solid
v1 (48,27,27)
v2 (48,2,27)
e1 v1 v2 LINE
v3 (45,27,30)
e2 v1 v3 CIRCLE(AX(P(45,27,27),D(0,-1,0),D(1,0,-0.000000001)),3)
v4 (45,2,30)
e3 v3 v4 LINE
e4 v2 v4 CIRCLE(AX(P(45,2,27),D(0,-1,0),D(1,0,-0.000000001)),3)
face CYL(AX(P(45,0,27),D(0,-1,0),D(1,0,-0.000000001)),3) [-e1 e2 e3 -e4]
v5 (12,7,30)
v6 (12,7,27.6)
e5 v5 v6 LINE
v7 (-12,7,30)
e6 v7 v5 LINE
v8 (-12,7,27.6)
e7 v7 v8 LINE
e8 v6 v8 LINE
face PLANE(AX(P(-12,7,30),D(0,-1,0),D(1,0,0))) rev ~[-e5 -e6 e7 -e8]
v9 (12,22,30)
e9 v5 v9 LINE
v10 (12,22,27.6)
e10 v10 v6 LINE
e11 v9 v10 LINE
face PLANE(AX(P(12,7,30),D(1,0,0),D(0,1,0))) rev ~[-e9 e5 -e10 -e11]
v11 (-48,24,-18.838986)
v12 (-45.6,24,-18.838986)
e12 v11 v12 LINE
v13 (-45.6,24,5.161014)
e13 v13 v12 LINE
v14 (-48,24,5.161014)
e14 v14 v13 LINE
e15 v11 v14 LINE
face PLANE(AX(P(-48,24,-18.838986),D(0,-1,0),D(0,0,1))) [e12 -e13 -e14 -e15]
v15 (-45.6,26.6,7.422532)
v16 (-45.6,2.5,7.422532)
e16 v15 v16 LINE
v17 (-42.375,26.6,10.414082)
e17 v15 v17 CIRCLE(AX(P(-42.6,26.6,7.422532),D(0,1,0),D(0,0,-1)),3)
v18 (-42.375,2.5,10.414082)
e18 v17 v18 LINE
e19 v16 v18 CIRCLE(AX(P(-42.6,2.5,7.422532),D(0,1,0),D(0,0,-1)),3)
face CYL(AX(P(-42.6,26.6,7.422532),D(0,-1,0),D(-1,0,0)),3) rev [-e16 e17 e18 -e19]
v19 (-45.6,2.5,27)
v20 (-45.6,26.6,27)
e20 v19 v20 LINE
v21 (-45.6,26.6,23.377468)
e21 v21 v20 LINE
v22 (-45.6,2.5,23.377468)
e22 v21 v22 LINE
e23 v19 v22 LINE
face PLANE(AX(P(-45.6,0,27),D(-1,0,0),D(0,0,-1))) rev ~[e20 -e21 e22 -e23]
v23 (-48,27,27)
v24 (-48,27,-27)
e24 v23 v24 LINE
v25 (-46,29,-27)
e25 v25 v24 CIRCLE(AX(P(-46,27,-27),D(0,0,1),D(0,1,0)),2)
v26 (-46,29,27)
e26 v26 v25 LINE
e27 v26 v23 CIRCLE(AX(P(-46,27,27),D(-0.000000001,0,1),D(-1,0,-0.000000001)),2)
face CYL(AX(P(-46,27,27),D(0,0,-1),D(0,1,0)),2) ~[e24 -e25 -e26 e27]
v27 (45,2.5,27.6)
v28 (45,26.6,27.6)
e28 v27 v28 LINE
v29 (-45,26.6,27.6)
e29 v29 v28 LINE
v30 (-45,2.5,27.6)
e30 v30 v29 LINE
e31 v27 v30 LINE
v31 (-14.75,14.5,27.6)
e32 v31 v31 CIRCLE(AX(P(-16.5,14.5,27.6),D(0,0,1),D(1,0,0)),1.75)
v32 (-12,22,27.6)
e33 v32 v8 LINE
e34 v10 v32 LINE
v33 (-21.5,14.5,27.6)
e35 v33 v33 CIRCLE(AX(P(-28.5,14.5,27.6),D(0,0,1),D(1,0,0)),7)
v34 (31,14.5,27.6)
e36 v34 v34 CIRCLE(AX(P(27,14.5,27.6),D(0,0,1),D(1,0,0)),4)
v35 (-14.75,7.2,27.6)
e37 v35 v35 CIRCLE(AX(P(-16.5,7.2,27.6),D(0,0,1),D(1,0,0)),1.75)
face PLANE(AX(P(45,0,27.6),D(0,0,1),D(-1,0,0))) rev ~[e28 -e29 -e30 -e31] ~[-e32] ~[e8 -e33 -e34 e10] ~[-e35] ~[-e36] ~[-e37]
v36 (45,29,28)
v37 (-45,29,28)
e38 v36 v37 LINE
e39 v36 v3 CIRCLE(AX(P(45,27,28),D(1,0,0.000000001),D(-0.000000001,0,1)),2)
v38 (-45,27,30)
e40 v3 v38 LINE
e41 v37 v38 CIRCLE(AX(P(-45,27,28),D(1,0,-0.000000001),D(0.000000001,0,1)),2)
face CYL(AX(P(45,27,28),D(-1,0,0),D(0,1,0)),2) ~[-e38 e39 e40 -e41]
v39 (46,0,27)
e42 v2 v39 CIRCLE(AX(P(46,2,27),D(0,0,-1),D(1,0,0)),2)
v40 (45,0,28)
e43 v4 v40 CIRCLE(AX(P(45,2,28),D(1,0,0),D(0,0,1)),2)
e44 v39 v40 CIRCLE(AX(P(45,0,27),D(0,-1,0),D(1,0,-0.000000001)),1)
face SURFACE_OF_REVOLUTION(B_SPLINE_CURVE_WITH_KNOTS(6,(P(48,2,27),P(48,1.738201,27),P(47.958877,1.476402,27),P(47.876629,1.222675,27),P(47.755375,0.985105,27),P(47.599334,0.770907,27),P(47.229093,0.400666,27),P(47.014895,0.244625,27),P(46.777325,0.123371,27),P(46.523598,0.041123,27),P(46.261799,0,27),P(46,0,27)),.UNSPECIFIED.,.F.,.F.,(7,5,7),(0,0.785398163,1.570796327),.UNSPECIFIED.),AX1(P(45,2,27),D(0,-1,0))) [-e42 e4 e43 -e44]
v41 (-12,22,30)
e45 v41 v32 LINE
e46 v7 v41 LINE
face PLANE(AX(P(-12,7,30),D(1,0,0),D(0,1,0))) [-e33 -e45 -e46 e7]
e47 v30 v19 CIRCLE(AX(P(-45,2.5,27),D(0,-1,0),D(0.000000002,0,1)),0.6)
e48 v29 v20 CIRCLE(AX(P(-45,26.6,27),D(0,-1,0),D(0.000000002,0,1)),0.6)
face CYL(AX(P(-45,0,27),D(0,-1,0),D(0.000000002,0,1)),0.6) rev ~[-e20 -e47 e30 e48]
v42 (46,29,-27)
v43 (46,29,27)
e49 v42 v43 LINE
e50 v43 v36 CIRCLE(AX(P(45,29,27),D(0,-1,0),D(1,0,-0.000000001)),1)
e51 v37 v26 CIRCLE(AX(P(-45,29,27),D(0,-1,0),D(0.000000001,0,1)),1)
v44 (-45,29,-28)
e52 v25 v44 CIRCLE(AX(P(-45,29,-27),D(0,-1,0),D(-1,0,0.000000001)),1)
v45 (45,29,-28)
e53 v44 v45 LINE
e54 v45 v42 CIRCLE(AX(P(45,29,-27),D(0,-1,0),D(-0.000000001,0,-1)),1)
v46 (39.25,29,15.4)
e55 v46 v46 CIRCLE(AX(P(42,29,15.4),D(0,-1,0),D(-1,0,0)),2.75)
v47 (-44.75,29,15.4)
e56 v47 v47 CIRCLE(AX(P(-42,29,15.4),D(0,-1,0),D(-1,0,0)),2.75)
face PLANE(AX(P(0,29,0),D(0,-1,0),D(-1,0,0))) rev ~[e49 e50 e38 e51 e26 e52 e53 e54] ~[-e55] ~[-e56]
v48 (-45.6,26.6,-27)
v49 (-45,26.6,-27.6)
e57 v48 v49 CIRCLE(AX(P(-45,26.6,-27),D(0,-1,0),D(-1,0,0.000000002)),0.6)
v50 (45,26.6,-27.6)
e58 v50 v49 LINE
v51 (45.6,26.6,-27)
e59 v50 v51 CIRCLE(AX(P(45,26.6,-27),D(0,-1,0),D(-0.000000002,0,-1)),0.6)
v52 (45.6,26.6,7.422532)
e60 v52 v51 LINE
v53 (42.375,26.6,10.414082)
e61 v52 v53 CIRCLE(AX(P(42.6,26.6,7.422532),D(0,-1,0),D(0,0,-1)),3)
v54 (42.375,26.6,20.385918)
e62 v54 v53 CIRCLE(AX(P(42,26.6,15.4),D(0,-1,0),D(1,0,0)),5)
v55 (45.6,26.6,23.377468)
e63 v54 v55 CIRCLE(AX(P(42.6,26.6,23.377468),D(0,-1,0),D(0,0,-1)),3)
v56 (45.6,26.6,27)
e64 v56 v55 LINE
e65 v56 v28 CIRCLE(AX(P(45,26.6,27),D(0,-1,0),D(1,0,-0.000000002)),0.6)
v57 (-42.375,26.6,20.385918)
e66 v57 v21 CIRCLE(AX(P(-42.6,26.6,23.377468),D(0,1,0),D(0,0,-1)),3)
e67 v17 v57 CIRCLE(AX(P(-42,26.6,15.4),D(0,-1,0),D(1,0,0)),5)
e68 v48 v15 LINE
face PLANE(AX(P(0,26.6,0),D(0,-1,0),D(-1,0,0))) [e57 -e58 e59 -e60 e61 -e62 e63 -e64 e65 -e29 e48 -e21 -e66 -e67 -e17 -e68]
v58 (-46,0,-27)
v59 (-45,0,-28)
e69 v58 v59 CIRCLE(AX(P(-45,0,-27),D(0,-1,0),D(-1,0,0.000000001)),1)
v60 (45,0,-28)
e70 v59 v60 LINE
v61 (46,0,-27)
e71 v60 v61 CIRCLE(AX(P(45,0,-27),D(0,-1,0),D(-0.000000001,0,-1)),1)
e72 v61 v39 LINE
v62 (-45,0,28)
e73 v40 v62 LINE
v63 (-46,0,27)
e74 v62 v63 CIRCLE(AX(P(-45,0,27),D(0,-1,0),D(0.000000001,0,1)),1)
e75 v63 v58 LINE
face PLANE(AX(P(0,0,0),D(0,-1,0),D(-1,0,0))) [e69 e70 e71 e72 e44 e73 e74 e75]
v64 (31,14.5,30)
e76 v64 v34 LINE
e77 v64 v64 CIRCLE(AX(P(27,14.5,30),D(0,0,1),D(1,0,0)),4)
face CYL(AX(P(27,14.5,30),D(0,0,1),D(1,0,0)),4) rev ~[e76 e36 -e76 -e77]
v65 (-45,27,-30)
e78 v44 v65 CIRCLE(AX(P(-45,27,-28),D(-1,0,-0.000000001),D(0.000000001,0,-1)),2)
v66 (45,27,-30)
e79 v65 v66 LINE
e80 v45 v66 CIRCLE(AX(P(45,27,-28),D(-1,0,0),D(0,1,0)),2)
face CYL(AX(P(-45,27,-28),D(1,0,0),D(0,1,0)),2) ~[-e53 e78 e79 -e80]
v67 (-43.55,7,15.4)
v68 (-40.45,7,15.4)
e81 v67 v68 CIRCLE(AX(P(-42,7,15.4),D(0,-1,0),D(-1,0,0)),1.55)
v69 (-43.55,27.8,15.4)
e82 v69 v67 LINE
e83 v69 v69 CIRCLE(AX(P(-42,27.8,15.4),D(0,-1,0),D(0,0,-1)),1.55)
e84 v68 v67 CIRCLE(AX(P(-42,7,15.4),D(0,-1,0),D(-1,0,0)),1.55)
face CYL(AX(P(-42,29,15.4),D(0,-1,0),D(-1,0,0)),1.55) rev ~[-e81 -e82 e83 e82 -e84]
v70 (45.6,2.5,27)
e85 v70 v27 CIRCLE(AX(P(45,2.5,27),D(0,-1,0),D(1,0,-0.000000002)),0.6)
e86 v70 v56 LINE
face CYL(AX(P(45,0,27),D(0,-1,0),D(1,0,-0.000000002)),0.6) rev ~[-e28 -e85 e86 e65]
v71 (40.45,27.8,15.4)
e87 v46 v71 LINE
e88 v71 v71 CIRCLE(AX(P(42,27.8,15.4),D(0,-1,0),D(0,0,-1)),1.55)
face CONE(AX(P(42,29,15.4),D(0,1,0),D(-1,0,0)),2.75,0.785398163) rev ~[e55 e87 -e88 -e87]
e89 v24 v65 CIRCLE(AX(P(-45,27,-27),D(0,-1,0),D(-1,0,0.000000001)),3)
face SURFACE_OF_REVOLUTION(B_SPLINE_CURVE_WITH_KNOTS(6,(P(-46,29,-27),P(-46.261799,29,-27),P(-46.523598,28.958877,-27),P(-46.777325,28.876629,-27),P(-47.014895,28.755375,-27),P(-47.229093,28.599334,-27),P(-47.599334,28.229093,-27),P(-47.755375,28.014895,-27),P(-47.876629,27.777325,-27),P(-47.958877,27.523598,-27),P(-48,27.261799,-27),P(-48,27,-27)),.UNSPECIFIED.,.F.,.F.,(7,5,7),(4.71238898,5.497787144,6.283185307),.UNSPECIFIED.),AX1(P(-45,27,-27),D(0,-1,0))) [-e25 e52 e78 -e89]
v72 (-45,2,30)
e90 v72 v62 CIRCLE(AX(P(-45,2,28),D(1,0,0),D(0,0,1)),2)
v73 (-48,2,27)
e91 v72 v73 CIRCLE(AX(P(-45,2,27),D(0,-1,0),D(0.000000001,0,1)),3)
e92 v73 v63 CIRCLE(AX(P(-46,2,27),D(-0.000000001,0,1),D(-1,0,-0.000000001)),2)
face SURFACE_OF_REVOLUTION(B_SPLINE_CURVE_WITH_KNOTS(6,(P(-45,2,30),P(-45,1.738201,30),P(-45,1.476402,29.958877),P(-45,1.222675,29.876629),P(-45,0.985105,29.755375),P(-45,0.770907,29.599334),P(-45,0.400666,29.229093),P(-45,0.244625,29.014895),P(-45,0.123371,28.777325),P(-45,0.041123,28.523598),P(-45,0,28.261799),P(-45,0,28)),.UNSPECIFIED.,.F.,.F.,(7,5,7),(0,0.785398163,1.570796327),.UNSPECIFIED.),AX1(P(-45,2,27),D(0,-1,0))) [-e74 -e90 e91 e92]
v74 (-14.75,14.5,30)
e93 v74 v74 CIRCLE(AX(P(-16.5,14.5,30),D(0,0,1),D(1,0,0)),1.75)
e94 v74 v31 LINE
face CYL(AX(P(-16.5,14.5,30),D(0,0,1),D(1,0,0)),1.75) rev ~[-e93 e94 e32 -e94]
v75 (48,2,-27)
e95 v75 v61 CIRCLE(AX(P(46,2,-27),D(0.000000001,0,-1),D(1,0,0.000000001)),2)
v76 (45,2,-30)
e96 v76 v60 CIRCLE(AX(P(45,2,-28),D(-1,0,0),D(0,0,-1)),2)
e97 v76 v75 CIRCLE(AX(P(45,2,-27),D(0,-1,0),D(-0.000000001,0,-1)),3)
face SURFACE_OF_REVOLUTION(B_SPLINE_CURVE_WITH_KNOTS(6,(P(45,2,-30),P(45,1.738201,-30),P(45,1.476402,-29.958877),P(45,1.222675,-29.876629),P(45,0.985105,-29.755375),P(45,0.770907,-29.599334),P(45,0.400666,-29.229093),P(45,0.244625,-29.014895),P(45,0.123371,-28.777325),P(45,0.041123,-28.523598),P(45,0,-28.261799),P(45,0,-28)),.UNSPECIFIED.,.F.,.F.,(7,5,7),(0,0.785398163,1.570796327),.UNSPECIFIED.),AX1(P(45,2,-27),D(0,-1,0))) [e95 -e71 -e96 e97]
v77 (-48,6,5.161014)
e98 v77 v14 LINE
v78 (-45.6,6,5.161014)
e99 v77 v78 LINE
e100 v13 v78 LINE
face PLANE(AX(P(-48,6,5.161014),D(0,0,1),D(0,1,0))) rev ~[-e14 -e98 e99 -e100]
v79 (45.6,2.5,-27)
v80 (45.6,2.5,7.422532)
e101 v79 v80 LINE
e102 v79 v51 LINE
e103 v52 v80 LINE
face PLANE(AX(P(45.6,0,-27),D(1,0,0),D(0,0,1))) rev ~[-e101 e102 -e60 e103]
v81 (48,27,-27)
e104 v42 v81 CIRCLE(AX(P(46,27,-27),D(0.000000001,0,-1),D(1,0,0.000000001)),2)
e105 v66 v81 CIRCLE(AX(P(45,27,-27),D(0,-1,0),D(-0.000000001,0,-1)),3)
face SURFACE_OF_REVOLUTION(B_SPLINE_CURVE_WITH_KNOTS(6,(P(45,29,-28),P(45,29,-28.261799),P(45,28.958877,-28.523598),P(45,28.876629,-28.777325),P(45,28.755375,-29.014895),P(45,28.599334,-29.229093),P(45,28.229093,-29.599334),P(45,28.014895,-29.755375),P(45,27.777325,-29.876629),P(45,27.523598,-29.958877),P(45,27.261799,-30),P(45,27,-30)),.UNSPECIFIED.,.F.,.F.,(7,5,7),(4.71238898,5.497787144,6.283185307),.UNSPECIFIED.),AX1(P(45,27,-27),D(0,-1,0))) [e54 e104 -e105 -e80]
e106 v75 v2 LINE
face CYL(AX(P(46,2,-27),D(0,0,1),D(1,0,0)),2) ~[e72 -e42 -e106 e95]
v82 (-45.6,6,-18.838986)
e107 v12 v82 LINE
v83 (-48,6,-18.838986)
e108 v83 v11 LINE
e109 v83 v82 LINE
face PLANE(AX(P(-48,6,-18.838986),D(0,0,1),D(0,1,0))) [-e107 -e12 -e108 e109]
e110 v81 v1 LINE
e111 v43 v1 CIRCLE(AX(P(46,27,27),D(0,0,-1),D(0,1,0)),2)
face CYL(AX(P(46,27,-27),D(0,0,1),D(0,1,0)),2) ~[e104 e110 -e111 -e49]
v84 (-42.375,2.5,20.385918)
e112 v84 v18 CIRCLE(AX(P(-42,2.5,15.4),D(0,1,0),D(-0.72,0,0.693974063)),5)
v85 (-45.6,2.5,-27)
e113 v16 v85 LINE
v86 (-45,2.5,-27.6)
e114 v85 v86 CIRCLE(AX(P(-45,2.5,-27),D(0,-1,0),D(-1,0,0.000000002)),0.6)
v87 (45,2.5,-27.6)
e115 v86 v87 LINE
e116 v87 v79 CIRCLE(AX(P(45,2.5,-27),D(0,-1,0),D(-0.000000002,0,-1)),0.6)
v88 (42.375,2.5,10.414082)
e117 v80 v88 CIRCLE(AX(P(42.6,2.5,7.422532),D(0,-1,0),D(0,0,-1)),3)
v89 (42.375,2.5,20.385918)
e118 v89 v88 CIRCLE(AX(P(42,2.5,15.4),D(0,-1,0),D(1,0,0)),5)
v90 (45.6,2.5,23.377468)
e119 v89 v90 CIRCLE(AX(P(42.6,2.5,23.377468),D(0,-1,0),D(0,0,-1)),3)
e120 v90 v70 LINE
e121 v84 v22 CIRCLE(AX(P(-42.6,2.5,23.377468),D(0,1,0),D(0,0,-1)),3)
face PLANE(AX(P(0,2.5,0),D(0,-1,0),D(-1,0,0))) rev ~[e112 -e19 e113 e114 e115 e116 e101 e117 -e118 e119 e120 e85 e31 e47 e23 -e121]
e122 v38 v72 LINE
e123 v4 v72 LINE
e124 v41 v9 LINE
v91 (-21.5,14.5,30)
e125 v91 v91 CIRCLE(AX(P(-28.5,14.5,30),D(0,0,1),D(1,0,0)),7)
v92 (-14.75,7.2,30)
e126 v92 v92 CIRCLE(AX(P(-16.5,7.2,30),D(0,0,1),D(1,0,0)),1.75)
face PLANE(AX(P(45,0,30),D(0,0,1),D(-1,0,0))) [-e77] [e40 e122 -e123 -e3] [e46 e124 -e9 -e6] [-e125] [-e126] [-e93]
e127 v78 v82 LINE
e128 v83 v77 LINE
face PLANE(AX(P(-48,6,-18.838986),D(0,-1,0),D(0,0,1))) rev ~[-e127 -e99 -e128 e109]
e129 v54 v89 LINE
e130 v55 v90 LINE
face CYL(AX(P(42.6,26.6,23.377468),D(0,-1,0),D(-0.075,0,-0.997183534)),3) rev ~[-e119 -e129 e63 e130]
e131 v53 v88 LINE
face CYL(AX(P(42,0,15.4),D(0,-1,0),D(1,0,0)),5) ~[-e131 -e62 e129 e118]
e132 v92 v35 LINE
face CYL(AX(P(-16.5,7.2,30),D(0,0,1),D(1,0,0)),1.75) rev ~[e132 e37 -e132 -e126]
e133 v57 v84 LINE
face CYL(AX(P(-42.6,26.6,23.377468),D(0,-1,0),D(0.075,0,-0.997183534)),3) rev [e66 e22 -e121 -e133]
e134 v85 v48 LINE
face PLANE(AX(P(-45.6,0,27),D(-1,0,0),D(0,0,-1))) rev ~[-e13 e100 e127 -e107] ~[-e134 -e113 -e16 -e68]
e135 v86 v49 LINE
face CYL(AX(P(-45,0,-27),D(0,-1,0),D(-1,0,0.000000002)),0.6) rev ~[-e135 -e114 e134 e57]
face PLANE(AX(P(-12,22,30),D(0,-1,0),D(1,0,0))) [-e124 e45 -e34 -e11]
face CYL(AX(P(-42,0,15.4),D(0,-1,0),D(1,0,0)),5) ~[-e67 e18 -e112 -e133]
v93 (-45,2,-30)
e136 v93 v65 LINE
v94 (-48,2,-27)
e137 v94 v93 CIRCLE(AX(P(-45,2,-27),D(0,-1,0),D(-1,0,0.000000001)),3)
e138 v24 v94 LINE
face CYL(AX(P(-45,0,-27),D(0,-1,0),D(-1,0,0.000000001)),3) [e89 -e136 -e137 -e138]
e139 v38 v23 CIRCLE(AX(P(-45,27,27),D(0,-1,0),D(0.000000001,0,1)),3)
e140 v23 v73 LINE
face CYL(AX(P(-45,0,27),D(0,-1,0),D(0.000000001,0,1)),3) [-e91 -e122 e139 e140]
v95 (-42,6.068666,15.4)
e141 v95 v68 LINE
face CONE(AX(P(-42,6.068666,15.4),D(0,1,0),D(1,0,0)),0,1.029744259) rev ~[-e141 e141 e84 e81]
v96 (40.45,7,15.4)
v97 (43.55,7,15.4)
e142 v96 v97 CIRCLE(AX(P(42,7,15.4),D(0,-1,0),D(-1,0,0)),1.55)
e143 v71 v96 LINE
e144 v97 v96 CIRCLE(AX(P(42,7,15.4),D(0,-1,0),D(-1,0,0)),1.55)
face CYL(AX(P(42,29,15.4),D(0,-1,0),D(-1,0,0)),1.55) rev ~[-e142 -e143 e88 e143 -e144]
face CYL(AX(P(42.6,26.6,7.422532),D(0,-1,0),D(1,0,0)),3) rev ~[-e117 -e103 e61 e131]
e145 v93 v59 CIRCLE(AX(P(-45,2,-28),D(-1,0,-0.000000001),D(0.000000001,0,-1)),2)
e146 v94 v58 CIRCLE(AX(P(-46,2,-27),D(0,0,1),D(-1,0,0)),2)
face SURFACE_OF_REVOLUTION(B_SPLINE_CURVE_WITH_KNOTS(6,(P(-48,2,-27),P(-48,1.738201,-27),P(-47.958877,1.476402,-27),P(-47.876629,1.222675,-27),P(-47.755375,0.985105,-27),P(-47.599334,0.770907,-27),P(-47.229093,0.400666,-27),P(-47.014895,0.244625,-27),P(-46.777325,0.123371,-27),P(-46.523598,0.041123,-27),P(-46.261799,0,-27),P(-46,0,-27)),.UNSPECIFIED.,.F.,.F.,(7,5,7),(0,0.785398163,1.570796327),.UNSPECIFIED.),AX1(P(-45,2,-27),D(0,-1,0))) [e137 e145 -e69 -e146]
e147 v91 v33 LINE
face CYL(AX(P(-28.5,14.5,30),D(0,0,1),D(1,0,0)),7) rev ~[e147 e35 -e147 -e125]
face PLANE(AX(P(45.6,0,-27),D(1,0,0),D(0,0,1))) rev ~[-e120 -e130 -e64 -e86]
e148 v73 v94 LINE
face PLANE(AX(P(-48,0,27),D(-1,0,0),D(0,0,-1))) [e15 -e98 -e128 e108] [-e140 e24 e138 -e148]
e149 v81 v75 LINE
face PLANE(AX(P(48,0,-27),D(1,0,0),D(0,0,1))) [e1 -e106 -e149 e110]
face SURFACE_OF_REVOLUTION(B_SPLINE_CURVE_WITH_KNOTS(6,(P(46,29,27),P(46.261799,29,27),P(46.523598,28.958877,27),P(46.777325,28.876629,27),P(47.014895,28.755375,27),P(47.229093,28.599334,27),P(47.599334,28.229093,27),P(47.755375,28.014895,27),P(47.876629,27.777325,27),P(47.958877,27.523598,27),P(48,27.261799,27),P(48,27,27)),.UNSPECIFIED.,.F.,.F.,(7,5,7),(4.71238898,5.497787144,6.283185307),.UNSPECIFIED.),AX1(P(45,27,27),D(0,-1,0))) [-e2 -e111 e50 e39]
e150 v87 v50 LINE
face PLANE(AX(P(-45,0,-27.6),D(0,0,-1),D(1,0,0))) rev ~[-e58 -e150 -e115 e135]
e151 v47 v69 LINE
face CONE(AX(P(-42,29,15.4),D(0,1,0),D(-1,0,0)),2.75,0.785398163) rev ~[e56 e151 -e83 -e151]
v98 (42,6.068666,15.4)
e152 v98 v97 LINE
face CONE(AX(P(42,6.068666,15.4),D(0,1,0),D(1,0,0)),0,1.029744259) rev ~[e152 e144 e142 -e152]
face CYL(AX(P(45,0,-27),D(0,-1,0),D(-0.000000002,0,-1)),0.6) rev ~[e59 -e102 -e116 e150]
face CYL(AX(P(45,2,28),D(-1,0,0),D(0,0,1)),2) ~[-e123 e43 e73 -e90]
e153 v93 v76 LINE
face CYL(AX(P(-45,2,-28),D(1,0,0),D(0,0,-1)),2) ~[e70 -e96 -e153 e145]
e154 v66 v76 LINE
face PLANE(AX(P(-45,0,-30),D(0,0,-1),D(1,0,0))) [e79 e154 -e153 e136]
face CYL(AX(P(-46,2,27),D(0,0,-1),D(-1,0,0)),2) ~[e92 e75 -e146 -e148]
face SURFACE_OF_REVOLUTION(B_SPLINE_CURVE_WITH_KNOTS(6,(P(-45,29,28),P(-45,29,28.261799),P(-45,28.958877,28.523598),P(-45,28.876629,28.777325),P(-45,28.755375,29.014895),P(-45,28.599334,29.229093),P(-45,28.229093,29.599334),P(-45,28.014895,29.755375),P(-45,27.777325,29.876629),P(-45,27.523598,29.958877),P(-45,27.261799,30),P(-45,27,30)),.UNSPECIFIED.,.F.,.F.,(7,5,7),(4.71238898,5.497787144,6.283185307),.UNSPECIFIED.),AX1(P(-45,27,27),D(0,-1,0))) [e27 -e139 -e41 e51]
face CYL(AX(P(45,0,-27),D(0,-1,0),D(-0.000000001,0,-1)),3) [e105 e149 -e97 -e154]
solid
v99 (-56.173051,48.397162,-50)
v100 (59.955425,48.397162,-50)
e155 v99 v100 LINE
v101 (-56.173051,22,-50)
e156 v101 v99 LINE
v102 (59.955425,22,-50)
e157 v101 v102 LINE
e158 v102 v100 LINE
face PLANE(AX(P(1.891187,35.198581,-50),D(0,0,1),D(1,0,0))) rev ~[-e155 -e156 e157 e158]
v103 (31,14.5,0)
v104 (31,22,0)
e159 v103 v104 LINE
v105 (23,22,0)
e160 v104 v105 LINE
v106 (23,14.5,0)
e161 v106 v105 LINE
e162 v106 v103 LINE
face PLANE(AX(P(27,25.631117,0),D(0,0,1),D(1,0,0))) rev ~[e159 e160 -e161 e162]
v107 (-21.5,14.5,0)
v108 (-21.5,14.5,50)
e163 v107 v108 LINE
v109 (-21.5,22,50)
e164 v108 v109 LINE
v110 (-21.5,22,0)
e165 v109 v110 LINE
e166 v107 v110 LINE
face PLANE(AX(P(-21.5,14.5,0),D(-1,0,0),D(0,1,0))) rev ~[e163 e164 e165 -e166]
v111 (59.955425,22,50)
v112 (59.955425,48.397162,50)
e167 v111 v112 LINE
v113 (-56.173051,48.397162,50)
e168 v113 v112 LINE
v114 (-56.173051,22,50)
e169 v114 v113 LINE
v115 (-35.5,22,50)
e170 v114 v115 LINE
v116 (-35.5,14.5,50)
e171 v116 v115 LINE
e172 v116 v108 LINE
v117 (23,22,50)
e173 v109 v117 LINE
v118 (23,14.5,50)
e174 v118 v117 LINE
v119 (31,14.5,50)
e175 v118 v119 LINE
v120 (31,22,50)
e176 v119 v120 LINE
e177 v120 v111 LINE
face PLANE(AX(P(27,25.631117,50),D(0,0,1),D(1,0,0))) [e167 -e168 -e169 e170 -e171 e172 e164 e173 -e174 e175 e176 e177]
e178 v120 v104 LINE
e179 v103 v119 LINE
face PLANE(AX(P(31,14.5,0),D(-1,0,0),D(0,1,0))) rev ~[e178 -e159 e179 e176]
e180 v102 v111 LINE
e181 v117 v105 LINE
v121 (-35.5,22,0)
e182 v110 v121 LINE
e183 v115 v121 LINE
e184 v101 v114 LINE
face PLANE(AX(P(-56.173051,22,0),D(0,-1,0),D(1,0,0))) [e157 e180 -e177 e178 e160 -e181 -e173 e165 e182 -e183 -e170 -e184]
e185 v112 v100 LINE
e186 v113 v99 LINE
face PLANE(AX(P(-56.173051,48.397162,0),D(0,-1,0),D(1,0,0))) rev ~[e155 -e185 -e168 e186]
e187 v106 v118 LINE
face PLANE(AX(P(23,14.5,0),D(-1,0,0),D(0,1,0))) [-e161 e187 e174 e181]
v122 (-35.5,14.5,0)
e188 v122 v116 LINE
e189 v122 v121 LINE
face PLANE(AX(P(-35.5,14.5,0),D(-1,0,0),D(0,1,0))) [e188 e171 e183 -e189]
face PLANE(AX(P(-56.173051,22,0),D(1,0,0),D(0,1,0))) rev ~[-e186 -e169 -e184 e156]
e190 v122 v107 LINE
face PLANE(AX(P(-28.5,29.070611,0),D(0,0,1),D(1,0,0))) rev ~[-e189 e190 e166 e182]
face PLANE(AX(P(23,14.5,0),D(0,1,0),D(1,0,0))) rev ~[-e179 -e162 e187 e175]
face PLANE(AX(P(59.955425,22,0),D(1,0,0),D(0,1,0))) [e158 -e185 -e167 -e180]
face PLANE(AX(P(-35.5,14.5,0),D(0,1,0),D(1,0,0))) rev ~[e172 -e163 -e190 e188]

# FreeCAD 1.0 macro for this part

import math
import FreeCAD as App
import Part
import Sketcher

V = App.Vector


def edges_at(feature, points):
    """Names of the edges that pass closest to the given points."""
    edges = feature.Shape.Edges
    near = lambda p: min(range(len(edges)), key=lambda i: edges[i].distToShape(Part.Vertex(*p))[0])
    return sorted({f"Edge{near(p) + 1}" for p in points})

doc = App.newDocument("Part")
body = doc.addObject("PartDesign::Body", "Body")

sketch1 = body.newObject("Sketcher::SketchObject", "Sketch")
sketch1.AttachmentSupport = (doc.getObject("XZ_Plane"), [""])
sketch1.MapMode = "FlatFace"
sketch1.addGeometry([
    Part.LineSegment(V(45, -30, 0), V(-45, -30, 0)),
    Part.ArcOfCircle(Part.Circle(V(-45, -27, 0), V(0, 0, 1), 3), math.radians(180), math.radians(270)),
    Part.LineSegment(V(-48, -27, 0), V(-48, 27, 0)),
    Part.ArcOfCircle(Part.Circle(V(-45, 27, 0), V(0, 0, 1), 3), math.radians(90), math.radians(180)),
    Part.LineSegment(V(-45, 30, 0), V(45, 30, 0)),
    Part.ArcOfCircle(Part.Circle(V(45, 27, 0), V(0, 0, 1), 3), math.radians(0), math.radians(90)),
    Part.LineSegment(V(48, 27, 0), V(48, -27, 0)),
    Part.ArcOfCircle(Part.Circle(V(45, -27, 0), V(0, 0, 1), 3), math.radians(-90), math.radians(0)),
], False)
sketch1.addConstraint([
    Sketcher.Constraint("Tangent", 0, 2, 1, 2),
    Sketcher.Constraint("Tangent", 1, 1, 2, 1),
    Sketcher.Constraint("Tangent", 2, 2, 3, 2),
    Sketcher.Constraint("Tangent", 3, 1, 4, 1),
    Sketcher.Constraint("Tangent", 4, 2, 5, 2),
    Sketcher.Constraint("Tangent", 5, 1, 6, 1),
    Sketcher.Constraint("Tangent", 6, 2, 7, 2),
    Sketcher.Constraint("Tangent", 7, 1, 0, 1),
    Sketcher.Constraint("Horizontal", 0),
    Sketcher.Constraint("Vertical", 2),
    Sketcher.Constraint("Horizontal", 4),
    Sketcher.Constraint("Vertical", 6),
    Sketcher.Constraint("Equal", 1, 3),
    Sketcher.Constraint("Equal", 3, 5),
    Sketcher.Constraint("Equal", 5, 7),
    Sketcher.Constraint("Symmetric", 1, 3, 5, 3, -1, 1),
    Sketcher.Constraint("Radius", 1, 3.0),
    Sketcher.Constraint("DistanceX", 0, 2, 0, 1, 90.0),
    Sketcher.Constraint("DistanceY", 2, 1, 2, 2, 54.0),
])
pad1 = body.newObject("PartDesign::Pad", "Pad")
pad1.Profile = sketch1
pad1.Length = 2.5
pad1.Reversed = True

sketch2 = body.newObject("Sketcher::SketchObject", "Sketch001")
sketch2.AttachmentSupport = (doc.getObject("XZ_Plane"), [""])
sketch2.MapMode = "FlatFace"
sketch2.addGeometry([
    Part.LineSegment(V(45, -30, 0), V(-45, -30, 0)),
    Part.ArcOfCircle(Part.Circle(V(-45, -27, 0), V(0, 0, 1), 3), math.radians(180), math.radians(270)),
    Part.LineSegment(V(-48, -27, 0), V(-48, 27, 0)),
    Part.ArcOfCircle(Part.Circle(V(-45, 27, 0), V(0, 0, 1), 3), math.radians(90), math.radians(180)),
    Part.LineSegment(V(-45, 30, 0), V(45, 30, 0)),
    Part.ArcOfCircle(Part.Circle(V(45, 27, 0), V(0, 0, 1), 3), math.radians(0), math.radians(90)),
    Part.LineSegment(V(48, 27, 0), V(48, -27, 0)),
    Part.ArcOfCircle(Part.Circle(V(45, -27, 0), V(0, 0, 1), 3), math.radians(-90), math.radians(0)),
    Part.LineSegment(V(-45, -27.6, 0), V(45, -27.6, 0)),
    Part.ArcOfCircle(Part.Circle(V(45, -27, 0), V(0, 0, 1), 0.6), math.radians(-90), math.radians(0)),
    Part.LineSegment(V(45.6, -27, 0), V(45.6, 27, 0)),
    Part.ArcOfCircle(Part.Circle(V(45, 27, 0), V(0, 0, 1), 0.6), math.radians(0), math.radians(90)),
    Part.LineSegment(V(45, 27.6, 0), V(-45, 27.6, 0)),
    Part.ArcOfCircle(Part.Circle(V(-45, 27, 0), V(0, 0, 1), 0.6), math.radians(90), math.radians(180)),
    Part.LineSegment(V(-45.6, 27, 0), V(-45.6, -27, 0)),
    Part.ArcOfCircle(Part.Circle(V(-45, -27, 0), V(0, 0, 1), 0.6), math.radians(180), math.radians(270)),
], False)
sketch2.addConstraint([
    Sketcher.Constraint("Tangent", 0, 2, 1, 2),
    Sketcher.Constraint("Tangent", 1, 1, 2, 1),
    Sketcher.Constraint("Tangent", 2, 2, 3, 2),
    Sketcher.Constraint("Tangent", 3, 1, 4, 1),
    Sketcher.Constraint("Tangent", 4, 2, 5, 2),
    Sketcher.Constraint("Tangent", 5, 1, 6, 1),
    Sketcher.Constraint("Tangent", 6, 2, 7, 2),
    Sketcher.Constraint("Tangent", 7, 1, 0, 1),
    Sketcher.Constraint("Tangent", 8, 2, 9, 1),
    Sketcher.Constraint("Tangent", 9, 2, 10, 1),
    Sketcher.Constraint("Tangent", 10, 2, 11, 1),
    Sketcher.Constraint("Tangent", 11, 2, 12, 1),
    Sketcher.Constraint("Tangent", 12, 2, 13, 1),
    Sketcher.Constraint("Tangent", 13, 2, 14, 1),
    Sketcher.Constraint("Tangent", 14, 2, 15, 1),
    Sketcher.Constraint("Tangent", 15, 2, 8, 1),
    Sketcher.Constraint("Horizontal", 0),
    Sketcher.Constraint("Vertical", 2),
    Sketcher.Constraint("Horizontal", 4),
    Sketcher.Constraint("Vertical", 6),
    Sketcher.Constraint("Horizontal", 8),
    Sketcher.Constraint("Vertical", 10),
    Sketcher.Constraint("Horizontal", 12),
    Sketcher.Constraint("Vertical", 14),
    Sketcher.Constraint("Coincident", 9, 3, 7, 3),
    Sketcher.Constraint("Coincident", 11, 3, 5, 3),
    Sketcher.Constraint("Coincident", 13, 3, 3, 3),
    Sketcher.Constraint("Equal", 1, 3),
    Sketcher.Constraint("Equal", 3, 5),
    Sketcher.Constraint("Equal", 5, 7),
    Sketcher.Constraint("Equal", 13, 15),
    Sketcher.Constraint("Symmetric", 1, 3, 5, 3, -1, 1),
    Sketcher.Constraint("Radius", 1, 3.0),
    Sketcher.Constraint("Radius", 9, 0.6),
    Sketcher.Constraint("DistanceX", 0, 2, 0, 1, 90.0),
    Sketcher.Constraint("DistanceY", 2, 1, 2, 2, 54.0),
])
pad2 = body.newObject("PartDesign::Pad", "Pad001")
pad2.Profile = sketch2
pad2.Length = 29
pad2.Reversed = True

sketch3 = body.newObject("Sketcher::SketchObject", "Sketch002")
sketch3.AttachmentSupport = (doc.getObject("XZ_Plane"), [""])
sketch3.MapMode = "FlatFace"
sketch3.addGeometry([
    Part.Circle(V(-42, 15, 0), V(0, 0, 1), 5),
    Part.Circle(V(42, 15, 0), V(0, 0, 1), 5),
], False)
sketch3.addConstraint([
    Sketcher.Constraint("Equal", 0, 1),
    Sketcher.Constraint("Symmetric", 0, 3, 1, 3, -2),
    Sketcher.Constraint("Diameter", 0, 10.0),
    Sketcher.Constraint("DistanceX", 0, 3, -1, 1, 42.0),
    Sketcher.Constraint("DistanceY", -1, 1, 0, 3, 15.4),
])
pad3 = body.newObject("PartDesign::Pad", "Pad002")
pad3.Profile = sketch3
pad3.Length = 29
pad3.Reversed = True

sketch4 = body.newObject("Sketcher::SketchObject", "Sketch003")
sketch4.AttachmentSupport = (doc.getObject("XZ_Plane"), [""])
sketch4.MapMode = "FlatFace"
sketch4.AttachmentOffset = App.Placement(V(0, 0, -26.6), App.Rotation())
sketch4.addGeometry([
    Part.LineSegment(V(45, -30, 0), V(-45, -30, 0)),
    Part.ArcOfCircle(Part.Circle(V(-45, -27, 0), V(0, 0, 1), 3), math.radians(180), math.radians(270)),
    Part.LineSegment(V(-48, -27, 0), V(-48, 27, 0)),
    Part.ArcOfCircle(Part.Circle(V(-45, 27, 0), V(0, 0, 1), 3), math.radians(90), math.radians(180)),
    Part.LineSegment(V(-45, 30, 0), V(45, 30, 0)),
    Part.ArcOfCircle(Part.Circle(V(45, 27, 0), V(0, 0, 1), 3), math.radians(0), math.radians(90)),
    Part.LineSegment(V(48, 27, 0), V(48, -27, 0)),
    Part.ArcOfCircle(Part.Circle(V(45, -27, 0), V(0, 0, 1), 3), math.radians(-90), math.radians(0)),
], False)
sketch4.addConstraint([
    Sketcher.Constraint("Tangent", 0, 2, 1, 2),
    Sketcher.Constraint("Tangent", 1, 1, 2, 1),
    Sketcher.Constraint("Tangent", 2, 2, 3, 2),
    Sketcher.Constraint("Tangent", 3, 1, 4, 1),
    Sketcher.Constraint("Tangent", 4, 2, 5, 2),
    Sketcher.Constraint("Tangent", 5, 1, 6, 1),
    Sketcher.Constraint("Tangent", 6, 2, 7, 2),
    Sketcher.Constraint("Tangent", 7, 1, 0, 1),
    Sketcher.Constraint("Horizontal", 0),
    Sketcher.Constraint("Vertical", 2),
    Sketcher.Constraint("Horizontal", 4),
    Sketcher.Constraint("Vertical", 6),
    Sketcher.Constraint("Equal", 1, 3),
    Sketcher.Constraint("Equal", 3, 5),
    Sketcher.Constraint("Equal", 5, 7),
    Sketcher.Constraint("Symmetric", 1, 3, 5, 3, -1, 1),
    Sketcher.Constraint("Radius", 1, 3.0),
    Sketcher.Constraint("DistanceX", 0, 2, 0, 1, 90.0),
    Sketcher.Constraint("DistanceY", 2, 1, 2, 2, 54.0),
])
pad4 = body.newObject("PartDesign::Pad", "Pad003")
pad4.Profile = sketch4
pad4.Length = 2.4
pad4.Reversed = True

sketch5 = body.newObject("Sketcher::SketchObject", "Sketch004")
sketch5.AttachmentSupport = (doc.getObject("XZ_Plane"), [""])
sketch5.MapMode = "FlatFace"
sketch5.AttachmentOffset = App.Placement(V(0, 0, -29), App.Rotation())
sketch5.addGeometry([
    Part.Circle(V(-42, 15.4, 0), V(0, 0, 1), 1.6),
    Part.Circle(V(42, 15.4, 0), V(0, 0, 1), 1.6),
], False)
sketch5.addConstraint([
    Sketcher.Constraint("Equal", 0, 1),
    Sketcher.Constraint("Symmetric", 0, 3, 1, 3, -2),
    Sketcher.Constraint("Diameter", 0, 3.1),
    Sketcher.Constraint("DistanceX", 0, 3, -1, 1, 42.0),
    Sketcher.Constraint("DistanceY", -1, 1, 0, 3, 15.4),
])
doc.recompute()
hole = body.newObject("PartDesign::Hole", "Hole")
hole.Profile = sketch5
hole.ThreadType = "None"
hole.Diameter = 3.1
hole.DepthType = "Dimension"
hole.Depth = 22
hole.DrillPoint = "Angled"
hole.DrillPointAngle = 118
hole.HoleCutType = "Countersink"
hole.HoleCutDiameter = 5.5
hole.HoleCutCountersinkAngle = 90
hole.Reversed = True

sketch6 = body.newObject("Sketcher::SketchObject", "Sketch005")
sketch6.AttachmentSupport = (doc.getObject("YZ_Plane"), [""])
sketch6.MapMode = "FlatFace"
sketch6.AttachmentOffset = App.Placement(V(0, 0, -48), App.Rotation())
sketch6.addGeometry([
    Part.LineSegment(V(24, -19, 0), V(6, -19, 0)),
    Part.LineSegment(V(6, -19, 0), V(6, 5, 0)),
    Part.LineSegment(V(6, 5, 0), V(24, 5, 0)),
    Part.LineSegment(V(24, 5, 0), V(24, -19, 0)),
], False)
sketch6.addConstraint([
    Sketcher.Constraint("Coincident", 0, 2, 1, 1),
    Sketcher.Constraint("Coincident", 1, 2, 2, 1),
    Sketcher.Constraint("Coincident", 2, 2, 3, 1),
    Sketcher.Constraint("Coincident", 3, 2, 0, 1),
    Sketcher.Constraint("Horizontal", 0),
    Sketcher.Constraint("Vertical", 1),
    Sketcher.Constraint("Horizontal", 2),
    Sketcher.Constraint("Vertical", 3),
    Sketcher.Constraint("DistanceX", 0, 2, 0, 1, 18.0),
    Sketcher.Constraint("DistanceY", 1, 1, 1, 2, 24.0),
    Sketcher.Constraint("DistanceX", -1, 1, 0, 2, 6.0),
    Sketcher.Constraint("DistanceY", 0, 2, -1, 1, 18.838986),
])
pocket1 = body.newObject("PartDesign::Pocket", "Pocket")
pocket1.Profile = sketch6
pocket1.Type = "UpToFirst"
pocket1.Reversed = True

sketch7 = body.newObject("Sketcher::SketchObject", "Sketch006")
sketch7.AttachmentSupport = (doc.getObject("XY_Plane"), [""])
sketch7.MapMode = "FlatFace"
sketch7.AttachmentOffset = App.Placement(V(0, 0, 30), App.Rotation())
sketch7.addGeometry(Part.Circle(V(-28, 14, 0), V(0, 0, 1), 7), False)
sketch7.addConstraint([
    Sketcher.Constraint("Diameter", 0, 14.0),
    Sketcher.Constraint("DistanceX", 0, 3, -1, 1, 28.5),
    Sketcher.Constraint("DistanceY", -1, 1, 0, 3, 14.5),
])
pocket2 = body.newObject("PartDesign::Pocket", "Pocket001")
pocket2.Profile = sketch7
pocket2.Type = "UpToFirst"

sketch8 = body.newObject("Sketcher::SketchObject", "Sketch007")
sketch8.AttachmentSupport = (doc.getObject("XY_Plane"), [""])
sketch8.MapMode = "FlatFace"
sketch8.AttachmentOffset = App.Placement(V(0, 0, 30), App.Rotation())
sketch8.addGeometry(Part.Circle(V(27, 14.5, 0), V(0, 0, 1), 4), False)
sketch8.addConstraint([
    Sketcher.Constraint("Diameter", 0, 8.0),
    Sketcher.Constraint("DistanceX", -1, 1, 0, 3, 27.0),
    Sketcher.Constraint("DistanceY", -1, 1, 0, 3, 14.5),
])
pocket3 = body.newObject("PartDesign::Pocket", "Pocket002")
pocket3.Profile = sketch8
pocket3.Type = "UpToFirst"

sketch9 = body.newObject("Sketcher::SketchObject", "Sketch008")
sketch9.AttachmentSupport = (doc.getObject("XY_Plane"), [""])
sketch9.MapMode = "FlatFace"
sketch9.AttachmentOffset = App.Placement(V(0, 0, 30), App.Rotation())
sketch9.addGeometry(Part.Circle(V(-16.5, 14.5, 0), V(0, 0, 1), 1.8), False)
sketch9.addConstraint([
    Sketcher.Constraint("Diameter", 0, 3.5),
    Sketcher.Constraint("DistanceX", 0, 3, -1, 1, 16.5),
    Sketcher.Constraint("DistanceY", -1, 1, 0, 3, 14.5),
])
pocket4 = body.newObject("PartDesign::Pocket", "Pocket003")
pocket4.Profile = sketch9
pocket4.Type = "UpToFirst"

sketch10 = body.newObject("Sketcher::SketchObject", "Sketch009")
sketch10.AttachmentSupport = (doc.getObject("XY_Plane"), [""])
sketch10.MapMode = "FlatFace"
sketch10.AttachmentOffset = App.Placement(V(0, 0, 30), App.Rotation())
sketch10.addGeometry(Part.Circle(V(-16.5, 7.2, 0), V(0, 0, 1), 1.8), False)
sketch10.addConstraint([
    Sketcher.Constraint("Diameter", 0, 3.5),
    Sketcher.Constraint("DistanceX", 0, 3, -1, 1, 16.5),
    Sketcher.Constraint("DistanceY", -1, 1, 0, 3, 7.2),
])
pocket5 = body.newObject("PartDesign::Pocket", "Pocket004")
pocket5.Profile = sketch10
pocket5.Type = "UpToFirst"

sketch11 = body.newObject("Sketcher::SketchObject", "Sketch010")
sketch11.AttachmentSupport = (doc.getObject("XY_Plane"), [""])
sketch11.MapMode = "FlatFace"
sketch11.AttachmentOffset = App.Placement(V(0, 0, 30), App.Rotation())
sketch11.addGeometry([
    Part.LineSegment(V(-12, 22, 0), V(-12, 7, 0)),
    Part.LineSegment(V(-12, 7, 0), V(12, 7, 0)),
    Part.LineSegment(V(12, 7, 0), V(12, 22, 0)),
    Part.LineSegment(V(12, 22, 0), V(-12, 22, 0)),
], False)
sketch11.addConstraint([
    Sketcher.Constraint("Coincident", 0, 2, 1, 1),
    Sketcher.Constraint("Coincident", 1, 2, 2, 1),
    Sketcher.Constraint("Coincident", 2, 2, 3, 1),
    Sketcher.Constraint("Coincident", 3, 2, 0, 1),
    Sketcher.Constraint("Vertical", 0),
    Sketcher.Constraint("Horizontal", 1),
    Sketcher.Constraint("Vertical", 2),
    Sketcher.Constraint("Horizontal", 3),
    Sketcher.Constraint("DistanceX", 1, 1, 1, 2, 24.0),
    Sketcher.Constraint("DistanceY", 0, 2, 0, 1, 15.0),
    Sketcher.Constraint("DistanceX", 0, 2, -1, 1, 12.0),
    Sketcher.Constraint("DistanceY", -1, 1, 0, 2, 7.0),
])
pocket6 = body.newObject("PartDesign::Pocket", "Pocket005")
pocket6.Profile = sketch11
pocket6.Type = "UpToFirst"
doc.recompute()

fillet = body.newObject("PartDesign::Fillet", "Fillet")
fillet.Base = (pocket6, edges_at(pocket6, [
    (0, 0, 30),
    (-47.121, 0, 29.121),
    (-47.121, 29, 29.121),
    (0, 29, 30),
    (47.121, 29, 29.121),
    (48, 29, 0),
    (47.121, 29, -29.121),
    (0, 29, -30),
    (-47.121, 29, -29.121),
    (-48, 29, 0),
    (-48, 0, 0),
    (-47.121, 0, -29.121),
    (0, 0, -30),
    (47.121, 0, -29.121),
    (48, 0, 0),
    (47.121, 0, 29.121),
]))
fillet.Radius = 2
doc.recompute()

fillet2 = body.newObject("PartDesign::Fillet", "Fillet001")
fillet2.Base = (fillet, edges_at(fillet, [
    (45.6, 14.55, 18.87),
    (-45.6, 14.55, 11.93),
    (-45.6, 14.55, 18.87),
    (45.6, 14.55, 11.93),
]))
fillet2.Radius = 3
body2 = doc.addObject("PartDesign::Body", "Body001")

sketch12 = body2.newObject("Sketcher::SketchObject", "Sketch011")
sketch12.AttachmentSupport = (doc.getObject("XY_Plane001"), [""])
sketch12.MapMode = "FlatFace"
sketch12.addGeometry([
    Part.LineSegment(V(-56, 48, 0), V(-56, 22, 0)),
    Part.LineSegment(V(-56, 22, 0), V(60, 22, 0)),
    Part.LineSegment(V(60, 22, 0), V(60, 48, 0)),
    Part.LineSegment(V(60, 48, 0), V(-56, 48, 0)),
], False)
sketch12.addConstraint([
    Sketcher.Constraint("Coincident", 0, 2, 1, 1),
    Sketcher.Constraint("Coincident", 1, 2, 2, 1),
    Sketcher.Constraint("Coincident", 2, 2, 3, 1),
    Sketcher.Constraint("Coincident", 3, 2, 0, 1),
    Sketcher.Constraint("Vertical", 0),
    Sketcher.Constraint("Horizontal", 1),
    Sketcher.Constraint("Vertical", 2),
    Sketcher.Constraint("Horizontal", 3),
    Sketcher.Constraint("DistanceY", -1, 1, 0, 2, 22.0),
    Sketcher.Constraint("DistanceY", 0, 2, 0, 1, 26.397162),
    Sketcher.Constraint("DistanceX", 1, 1, 1, 2, 116.128476),
    Sketcher.Constraint("DistanceX", 0, 2, -1, 1, 56.173051),
])
pad5 = body2.newObject("PartDesign::Pad", "Pad004")
pad5.Profile = sketch12
pad5.Length = 100
pad5.Midplane = True

sketch13 = body2.newObject("Sketcher::SketchObject", "Sketch012")
sketch13.AttachmentSupport = (doc.getObject("XY_Plane001"), [""])
sketch13.MapMode = "FlatFace"
sketch13.addGeometry([
    Part.LineSegment(V(-36, 44, 0), V(-36, 14, 0)),
    Part.LineSegment(V(-36, 14, 0), V(-22, 14, 0)),
    Part.LineSegment(V(-22, 14, 0), V(-22, 44, 0)),
    Part.LineSegment(V(-22, 44, 0), V(-36, 44, 0)),
], False)
sketch13.addConstraint([
    Sketcher.Constraint("Coincident", 0, 2, 1, 1),
    Sketcher.Constraint("Coincident", 1, 2, 2, 1),
    Sketcher.Constraint("Coincident", 2, 2, 3, 1),
    Sketcher.Constraint("Coincident", 3, 2, 0, 1),
    Sketcher.Constraint("Vertical", 0),
    Sketcher.Constraint("Horizontal", 1),
    Sketcher.Constraint("Vertical", 2),
    Sketcher.Constraint("Horizontal", 3),
    Sketcher.Constraint("DistanceX", 1, 1, 1, 2, 14.0),
    Sketcher.Constraint("DistanceX", 0, 2, -1, 1, 35.5),
    Sketcher.Constraint("DistanceY", -1, 1, 0, 2, 14.5),
    Sketcher.Constraint("DistanceY", 0, 2, 0, 1, 29.141221),
])
pad6 = body2.newObject("PartDesign::Pad", "Pad005")
pad6.Profile = sketch13
pad6.Length = 50

sketch14 = body2.newObject("Sketcher::SketchObject", "Sketch013")
sketch14.AttachmentSupport = (doc.getObject("XY_Plane001"), [""])
sketch14.MapMode = "FlatFace"
sketch14.addGeometry([
    Part.LineSegment(V(23, 37, 0), V(23, 14, 0)),
    Part.LineSegment(V(23, 14, 0), V(31, 14, 0)),
    Part.LineSegment(V(31, 14, 0), V(31, 37, 0)),
    Part.LineSegment(V(31, 37, 0), V(23, 37, 0)),
], False)
sketch14.addConstraint([
    Sketcher.Constraint("Coincident", 0, 2, 1, 1),
    Sketcher.Constraint("Coincident", 1, 2, 2, 1),
    Sketcher.Constraint("Coincident", 2, 2, 3, 1),
    Sketcher.Constraint("Coincident", 3, 2, 0, 1),
    Sketcher.Constraint("Vertical", 0),
    Sketcher.Constraint("Horizontal", 1),
    Sketcher.Constraint("Vertical", 2),
    Sketcher.Constraint("Horizontal", 3),
    Sketcher.Constraint("DistanceX", 1, 1, 1, 2, 8.0),
    Sketcher.Constraint("DistanceX", -1, 1, 0, 2, 23.0),
    Sketcher.Constraint("DistanceY", -1, 1, 0, 2, 14.5),
    Sketcher.Constraint("DistanceY", 0, 2, 0, 1, 22.262235),
])
pad7 = body2.newObject("PartDesign::Pad", "Pad006")
pad7.Profile = sketch14
pad7.Length = 50

doc.recompute()
